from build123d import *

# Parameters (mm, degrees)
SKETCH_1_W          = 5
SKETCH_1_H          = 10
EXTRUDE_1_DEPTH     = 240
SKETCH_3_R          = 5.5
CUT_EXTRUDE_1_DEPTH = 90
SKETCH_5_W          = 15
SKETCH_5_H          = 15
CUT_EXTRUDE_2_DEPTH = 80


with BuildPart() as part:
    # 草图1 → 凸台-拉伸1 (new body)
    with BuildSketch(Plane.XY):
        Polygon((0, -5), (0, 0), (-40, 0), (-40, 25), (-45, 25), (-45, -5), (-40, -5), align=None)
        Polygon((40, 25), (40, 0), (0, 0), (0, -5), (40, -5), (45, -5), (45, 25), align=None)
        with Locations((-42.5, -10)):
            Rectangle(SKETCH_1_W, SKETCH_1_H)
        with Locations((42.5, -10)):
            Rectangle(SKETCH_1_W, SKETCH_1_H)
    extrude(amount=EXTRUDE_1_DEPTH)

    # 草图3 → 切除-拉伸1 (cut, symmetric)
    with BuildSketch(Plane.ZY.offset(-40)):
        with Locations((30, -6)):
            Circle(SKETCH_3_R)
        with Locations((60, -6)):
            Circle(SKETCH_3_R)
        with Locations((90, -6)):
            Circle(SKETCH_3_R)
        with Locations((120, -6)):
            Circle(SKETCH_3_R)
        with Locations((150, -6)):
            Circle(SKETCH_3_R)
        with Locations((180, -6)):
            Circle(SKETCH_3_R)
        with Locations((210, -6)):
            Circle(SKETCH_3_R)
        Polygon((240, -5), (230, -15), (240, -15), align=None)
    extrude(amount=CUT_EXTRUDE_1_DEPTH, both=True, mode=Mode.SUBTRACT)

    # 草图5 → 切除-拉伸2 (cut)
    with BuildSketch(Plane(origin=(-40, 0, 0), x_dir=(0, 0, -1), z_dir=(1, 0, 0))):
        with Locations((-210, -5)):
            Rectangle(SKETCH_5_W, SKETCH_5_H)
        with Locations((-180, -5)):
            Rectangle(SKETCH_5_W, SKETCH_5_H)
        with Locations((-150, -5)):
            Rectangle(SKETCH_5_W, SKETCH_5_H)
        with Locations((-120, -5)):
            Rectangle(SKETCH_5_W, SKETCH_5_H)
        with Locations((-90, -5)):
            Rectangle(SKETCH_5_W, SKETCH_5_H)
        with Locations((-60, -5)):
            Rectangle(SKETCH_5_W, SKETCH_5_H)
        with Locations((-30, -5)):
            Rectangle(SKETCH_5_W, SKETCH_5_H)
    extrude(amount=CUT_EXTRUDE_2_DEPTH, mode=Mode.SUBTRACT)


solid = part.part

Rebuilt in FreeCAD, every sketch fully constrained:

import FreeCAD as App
import Part
import Sketcher

V = App.Vector
Q = App.Units.Quantity


def add_polygon(sketch, points):
    """Adds a closed chain of lines whose ends are joined by coincident constraints."""
    first, n = sketch.GeometryCount, len(points)
    for a, b in zip(points, points[1:] + points[:1]):
        sketch.addGeometry(Part.LineSegment(App.Vector(*a, 0), App.Vector(*b, 0)), False)
    for i in range(n):
        sketch.addConstraint(Sketcher.Constraint("Coincident", first + i, 2, first + (i + 1) % n, 1))

doc = App.newDocument("Part")
body = doc.addObject("PartDesign::Body", "Body")

# Sketch on XY plane
sketch1 = body.newObject("Sketcher::SketchObject", "Sketch")
sketch1.AttachmentSupport = (doc.getObject("XY_Plane"), [""])
sketch1.MapMode = "FlatFace"
add_polygon(sketch1, [(-40, 0), (-40, 25), (-45, 25), (-45, -15), (-40, -15), (-40, -5), (40, -5), (40, -15), (45, -15), (45, 25), (40, 25), (40, 0)])  # lines 0-11
sketch1.addConstraint([
    Sketcher.Constraint("Vertical", 0),
    Sketcher.Constraint("Horizontal", 1),
    Sketcher.Constraint("Vertical", 2),
    Sketcher.Constraint("Horizontal", 3),
    Sketcher.Constraint("Vertical", 4),
    Sketcher.Constraint("Horizontal", 5),
    Sketcher.Constraint("Vertical", 6),
    Sketcher.Constraint("Horizontal", 7),
    Sketcher.Constraint("Vertical", 8),
    Sketcher.Constraint("Horizontal", 9),
    Sketcher.Constraint("Vertical", 10),
    Sketcher.Constraint("Horizontal", 11),
    Sketcher.Constraint("Symmetric", 10, 2, 11, 2, -1, 1),
    Sketcher.Constraint("Symmetric", 3, 2, 6, 2, -2),
    Sketcher.Constraint("Symmetric", 1, 2, 8, 2, -2),
    Sketcher.Constraint("Vertical", 0, 2, 3, 2),
    Sketcher.Constraint("DistanceX", 1, 2, 1, 1, Q("5 mm")),
    Sketcher.Constraint("DistanceX", 5, 1, 5, 2, Q("80 mm")),
    Sketcher.Constraint("DistanceY", 0, 1, 0, 2, Q("25 mm")),
    Sketcher.Constraint("DistanceY", 2, 2, 2, 1, Q("40 mm")),
    Sketcher.Constraint("DistanceY", 4, 1, 4, 2, Q("10 mm")),
])
pad1 = body.newObject("PartDesign::Pad", "Pad")
pad1.Profile = sketch1
pad1.Length = 240

# Sketch on YZ plane
sketch2 = body.newObject("Sketcher::SketchObject", "Sketch001")
sketch2.AttachmentSupport = (doc.getObject("YZ_Plane"), [""])
sketch2.MapMode = "FlatFace"
sketch2.AttachmentOffset = App.Placement(V(0, 0, 40), App.Rotation())
sketch2.addGeometry(Part.Circle(V(-6, 30, 0), V(0, 0, 1), 6), False)  # 0
sketch2.addGeometry(Part.Circle(V(-6, 60, 0), V(0, 0, 1), 6), False)  # 1
sketch2.addGeometry(Part.Circle(V(-6, 90, 0), V(0, 0, 1), 6), False)  # 2
sketch2.addGeometry(Part.Circle(V(-6, 120, 0), V(0, 0, 1), 6), False)  # 3
sketch2.addGeometry(Part.Circle(V(-6, 150, 0), V(0, 0, 1), 6), False)  # 4
sketch2.addGeometry(Part.Circle(V(-6, 180, 0), V(0, 0, 1), 6), False)  # 5
sketch2.addGeometry(Part.Circle(V(-6, 210, 0), V(0, 0, 1), 6), False)  # 6
add_polygon(sketch2, [(-5, 240), (-15, 230), (-15, 240)])  # lines 7-9
sketch2.addConstraint([
    Sketcher.Constraint("Vertical", 8),
    Sketcher.Constraint("Horizontal", 9),
    Sketcher.Constraint("Equal", 0, 1),
    Sketcher.Constraint("Equal", 1, 2),
    Sketcher.Constraint("Equal", 2, 3),
    Sketcher.Constraint("Equal", 3, 4),
    Sketcher.Constraint("Equal", 4, 5),
    Sketcher.Constraint("Equal", 5, 6),
    Sketcher.Constraint("Vertical", 0, 3, 1, 3),
    Sketcher.Constraint("Vertical", 1, 3, 2, 3),
    Sketcher.Constraint("Vertical", 2, 3, 3, 3),
    Sketcher.Constraint("Vertical", 3, 3, 4, 3),
    Sketcher.Constraint("Vertical", 4, 3, 5, 3),
    Sketcher.Constraint("Vertical", 5, 3, 6, 3),
    Sketcher.Constraint("Equal", 9, 8),
    Sketcher.Constraint("Diameter", 0, Q("11 mm")),
    Sketcher.Constraint("DistanceX", 9, 1, 9, 2, Q("10 mm")),
    Sketcher.Constraint("DistanceX", 0, 3, -1, 1, Q("6 mm")),
    Sketcher.Constraint("DistanceY", -1, 1, 0, 3, Q("30 mm")),
    Sketcher.Constraint("DistanceY", -1, 1, 1, 3, Q("60 mm")),
    Sketcher.Constraint("DistanceY", -1, 1, 2, 3, Q("90 mm")),
    Sketcher.Constraint("DistanceY", -1, 1, 3, 3, Q("120 mm")),
    Sketcher.Constraint("DistanceY", -1, 1, 4, 3, Q("150 mm")),
    Sketcher.Constraint("DistanceY", -1, 1, 5, 3, Q("180 mm")),
    Sketcher.Constraint("DistanceY", -1, 1, 6, 3, Q("210 mm")),
    Sketcher.Constraint("DistanceX", 7, 2, -1, 1, Q("15 mm")),
    Sketcher.Constraint("DistanceY", -1, 1, 7, 2, Q("230 mm")),
])
pocket1 = body.newObject("PartDesign::Pocket", "Pocket")
pocket1.Profile = sketch2
pocket1.Length = 180
pocket1.Midplane = True

# Sketch on YZ plane
sketch3 = body.newObject("Sketcher::SketchObject", "Sketch002")
sketch3.AttachmentSupport = (doc.getObject("YZ_Plane"), [""])
sketch3.MapMode = "FlatFace"
sketch3.AttachmentOffset = App.Placement(V(0, 0, -40), App.Rotation())
add_polygon(sketch3, [(2, 218), (-12, 218), (-12, 202), (2, 202)])  # lines 0-3
add_polygon(sketch3, [(2, 188), (-12, 188), (-12, 172), (2, 172)])  # lines 4-7
add_polygon(sketch3, [(2, 158), (-12, 158), (-12, 142), (2, 142)])  # lines 8-11
add_polygon(sketch3, [(2, 128), (-12, 128), (-12, 112), (2, 112)])  # lines 12-15
add_polygon(sketch3, [(2, 98), (-12, 98), (-12, 82), (2, 82)])  # lines 16-19
add_polygon(sketch3, [(2, 68), (-12, 68), (-12, 52), (2, 52)])  # lines 20-23
add_polygon(sketch3, [(2, 38), (-12, 38), (-12, 22), (2, 22)])  # lines 24-27
sketch3.addConstraint([
    Sketcher.Constraint("Horizontal", 0),
    Sketcher.Constraint("Vertical", 1),
    Sketcher.Constraint("Horizontal", 2),
    Sketcher.Constraint("Vertical", 3),
    Sketcher.Constraint("Horizontal", 4),
    Sketcher.Constraint("Vertical", 5),
    Sketcher.Constraint("Horizontal", 6),
    Sketcher.Constraint("Vertical", 7),
    Sketcher.Constraint("Horizontal", 8),
    Sketcher.Constraint("Vertical", 9),
    Sketcher.Constraint("Horizontal", 10),
    Sketcher.Constraint("Vertical", 11),
    Sketcher.Constraint("Horizontal", 12),
    Sketcher.Constraint("Vertical", 13),
    Sketcher.Constraint("Horizontal", 14),
    Sketcher.Constraint("Vertical", 15),
    Sketcher.Constraint("Horizontal", 16),
    Sketcher.Constraint("Vertical", 17),
    Sketcher.Constraint("Horizontal", 18),
    Sketcher.Constraint("Vertical", 19),
    Sketcher.Constraint("Horizontal", 20),
    Sketcher.Constraint("Vertical", 21),
    Sketcher.Constraint("Horizontal", 22),
    Sketcher.Constraint("Vertical", 23),
    Sketcher.Constraint("Horizontal", 24),
    Sketcher.Constraint("Vertical", 25),
    Sketcher.Constraint("Horizontal", 26),
    Sketcher.Constraint("Vertical", 27),
    Sketcher.Constraint("Vertical", 1, 2, 4, 2),
    Sketcher.Constraint("Vertical", 3, 2, 6, 2),
    Sketcher.Constraint("Vertical", 5, 2, 8, 2),
    Sketcher.Constraint("Vertical", 7, 2, 10, 2),
    Sketcher.Constraint("Vertical", 9, 2, 12, 2),
    Sketcher.Constraint("Vertical", 11, 2, 14, 2),
    Sketcher.Constraint("Vertical", 13, 2, 16, 2),
    Sketcher.Constraint("Vertical", 15, 2, 18, 2),
    Sketcher.Constraint("Vertical", 17, 2, 20, 2),
    Sketcher.Constraint("Vertical", 19, 2, 22, 2),
    Sketcher.Constraint("Vertical", 21, 2, 24, 2),
    Sketcher.Constraint("Vertical", 23, 2, 26, 2),
    Sketcher.Constraint("Equal", 26, 1),
    Sketcher.Constraint("Equal", 3, 5),
    Sketcher.Constraint("Equal", 7, 9),
    Sketcher.Constraint("Equal", 11, 13),
    Sketcher.Constraint("Equal", 15, 17),
    Sketcher.Constraint("Equal", 19, 21),
    Sketcher.Constraint("Equal", 23, 25),
    Sketcher.Constraint("DistanceX", 0, 2, 0, 1, Q("15 mm")),
    Sketcher.Constraint("DistanceY", 4, 2, 1, 2, Q("15 mm")),
    Sketcher.Constraint("DistanceY", 8, 2, 5, 2, Q("15 mm")),
    Sketcher.Constraint("DistanceY", 12, 2, 9, 2, Q("15 mm")),
    Sketcher.Constraint("DistanceY", 16, 2, 13, 2, Q("15 mm")),
    Sketcher.Constraint("DistanceY", 20, 2, 17, 2, Q("15 mm")),
    Sketcher.Constraint("DistanceY", 24, 2, 21, 2, Q("15 mm")),
    Sketcher.Constraint("DistanceX", 0, 2, -1, 1, Q("12.5 mm")),
    Sketcher.Constraint("DistanceY", -1, 1, 0, 2, Q("217.5 mm")),
])
pocket2 = body.newObject("PartDesign::Pocket", "Pocket001")
pocket2.Profile = sketch3
pocket2.Length = 80
pocket2.Reversed = True

doc.recompute()
